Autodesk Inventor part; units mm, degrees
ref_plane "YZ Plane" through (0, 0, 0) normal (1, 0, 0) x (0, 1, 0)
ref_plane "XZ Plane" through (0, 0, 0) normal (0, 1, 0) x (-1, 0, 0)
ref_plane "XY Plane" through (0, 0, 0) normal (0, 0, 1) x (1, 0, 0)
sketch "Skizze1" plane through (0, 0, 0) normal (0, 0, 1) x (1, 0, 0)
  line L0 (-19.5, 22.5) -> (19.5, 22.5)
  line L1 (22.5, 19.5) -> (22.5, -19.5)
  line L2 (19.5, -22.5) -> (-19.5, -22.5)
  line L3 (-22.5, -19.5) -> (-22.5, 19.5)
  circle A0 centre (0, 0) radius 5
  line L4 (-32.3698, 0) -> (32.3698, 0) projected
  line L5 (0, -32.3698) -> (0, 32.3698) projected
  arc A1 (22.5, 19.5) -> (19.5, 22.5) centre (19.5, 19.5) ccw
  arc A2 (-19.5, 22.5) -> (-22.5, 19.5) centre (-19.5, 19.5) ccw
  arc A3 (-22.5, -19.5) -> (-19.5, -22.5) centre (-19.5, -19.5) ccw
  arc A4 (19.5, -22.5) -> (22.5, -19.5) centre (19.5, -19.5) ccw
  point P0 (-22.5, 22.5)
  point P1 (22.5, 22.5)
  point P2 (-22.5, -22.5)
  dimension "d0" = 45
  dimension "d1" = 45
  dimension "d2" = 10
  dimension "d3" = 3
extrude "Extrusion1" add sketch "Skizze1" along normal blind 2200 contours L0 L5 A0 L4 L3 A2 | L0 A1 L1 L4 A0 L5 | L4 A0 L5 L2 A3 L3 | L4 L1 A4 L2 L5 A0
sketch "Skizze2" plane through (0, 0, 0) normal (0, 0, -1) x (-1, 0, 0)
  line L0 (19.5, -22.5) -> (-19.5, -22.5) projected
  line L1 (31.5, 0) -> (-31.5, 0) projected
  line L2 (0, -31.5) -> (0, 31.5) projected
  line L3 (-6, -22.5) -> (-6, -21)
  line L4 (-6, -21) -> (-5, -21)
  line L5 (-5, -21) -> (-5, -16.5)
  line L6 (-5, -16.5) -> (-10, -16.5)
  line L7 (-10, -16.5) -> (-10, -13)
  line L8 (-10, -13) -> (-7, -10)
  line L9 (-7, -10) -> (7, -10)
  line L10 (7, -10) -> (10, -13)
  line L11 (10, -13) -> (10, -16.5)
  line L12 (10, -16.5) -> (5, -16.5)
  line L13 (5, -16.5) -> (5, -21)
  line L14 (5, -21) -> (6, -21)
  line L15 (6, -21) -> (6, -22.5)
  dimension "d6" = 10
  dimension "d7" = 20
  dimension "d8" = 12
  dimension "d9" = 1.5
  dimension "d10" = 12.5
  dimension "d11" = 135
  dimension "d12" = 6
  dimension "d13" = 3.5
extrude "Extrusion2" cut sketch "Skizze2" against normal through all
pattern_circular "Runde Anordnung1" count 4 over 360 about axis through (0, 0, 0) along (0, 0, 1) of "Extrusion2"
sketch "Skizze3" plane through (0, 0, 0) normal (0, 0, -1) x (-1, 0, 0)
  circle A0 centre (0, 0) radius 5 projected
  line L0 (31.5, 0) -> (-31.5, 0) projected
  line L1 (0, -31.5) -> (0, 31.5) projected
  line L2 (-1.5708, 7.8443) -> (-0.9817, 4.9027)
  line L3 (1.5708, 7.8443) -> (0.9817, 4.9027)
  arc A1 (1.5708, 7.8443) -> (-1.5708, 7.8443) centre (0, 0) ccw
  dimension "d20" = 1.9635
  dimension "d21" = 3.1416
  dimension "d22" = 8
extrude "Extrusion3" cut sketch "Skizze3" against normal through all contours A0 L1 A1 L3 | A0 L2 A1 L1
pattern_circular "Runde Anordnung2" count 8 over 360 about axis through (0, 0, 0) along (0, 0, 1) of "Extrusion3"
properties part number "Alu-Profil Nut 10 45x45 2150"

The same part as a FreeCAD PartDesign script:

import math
import FreeCAD as App
import Part
import Sketcher
Q = App.Units.Quantity

doc = App.newDocument("Part")
body = doc.addObject("PartDesign::Body", "Body")

# Sketch on XY plane
sketch1 = body.newObject("Sketcher::SketchObject", "Sketch")
sketch1.AttachmentSupport = (doc.getObject("XY_Plane"), [""])
sketch1.MapMode = "FlatFace"
sketch1.addGeometry([
    Part.ArcOfCircle(Part.Circle(App.Vector(-19.5, 19.5, 0), App.Vector(0, 0, 1), 3), math.radians(90), math.radians(180)),  # 0
    Part.LineSegment(App.Vector(-22.5, 19.5, 0), App.Vector(-22.5, -19.5, 0)),  # 1
    Part.ArcOfCircle(Part.Circle(App.Vector(-19.5, -19.5, 0), App.Vector(0, 0, 1), 3), math.radians(180), math.radians(270)),  # 2
    Part.LineSegment(App.Vector(-19.5, -22.5, 0), App.Vector(19.5, -22.5, 0)),  # 3
    Part.ArcOfCircle(Part.Circle(App.Vector(19.5, -19.5, 0), App.Vector(0, 0, 1), 3), math.radians(-90), math.radians(0)),  # 4
    Part.LineSegment(App.Vector(22.5, -19.5, 0), App.Vector(22.5, 19.5, 0)),  # 5
    Part.ArcOfCircle(Part.Circle(App.Vector(19.5, 19.5, 0), App.Vector(0, 0, 1), 3), math.radians(0), math.radians(90)),  # 6
    Part.LineSegment(App.Vector(19.5, 22.5, 0), App.Vector(-19.5, 22.5, 0)),  # 7
    Part.Circle(App.Vector(0, 0, 0), App.Vector(0, 0, 1), 5),  # 8
], False)
sketch1.addConstraint([
    Sketcher.Constraint("Tangent", 0, 2, 1, 1),
    Sketcher.Constraint("Tangent", 1, 2, 2, 1),
    Sketcher.Constraint("Tangent", 2, 2, 3, 1),
    Sketcher.Constraint("Tangent", 3, 2, 4, 1),
    Sketcher.Constraint("Tangent", 4, 2, 5, 1),
    Sketcher.Constraint("Tangent", 5, 2, 6, 1),
    Sketcher.Constraint("Tangent", 6, 2, 7, 1),
    Sketcher.Constraint("Tangent", 7, 2, 0, 1),
    Sketcher.Constraint("Vertical", 1),
    Sketcher.Constraint("Horizontal", 3),
    Sketcher.Constraint("Vertical", 5),
    Sketcher.Constraint("Horizontal", 7),
    Sketcher.Constraint("Coincident", 8, 3, -1, 1),
    Sketcher.Constraint("Equal", 0, 2),
    Sketcher.Constraint("Equal", 2, 4),
    Sketcher.Constraint("Equal", 4, 6),
    Sketcher.Constraint("Symmetric", 0, 3, 4, 3, -1, 1),
    Sketcher.Constraint("Equal", 7, 1),
    Sketcher.Constraint("Diameter", 8, Q("10 mm")),
    Sketcher.Constraint("Radius", 0, Q("3 mm")),
    Sketcher.Constraint("DistanceX", 3, 1, 3, 2, Q("39 mm")),
])
pad1 = body.newObject("PartDesign::Pad", "Pad")
pad1.Profile = sketch1
pad1.Length = 2200

# Sketch on XY plane
sketch2 = body.newObject("Sketcher::SketchObject", "Sketch001")
sketch2.AttachmentSupport = (doc.getObject("XY_Plane"), [""])
sketch2.MapMode = "FlatFace"
sketch2.addGeometry([
    Part.LineSegment(App.Vector(-6, -22.5, 0), App.Vector(-6, -21, 0)),  # 0
    Part.LineSegment(App.Vector(-6, -21, 0), App.Vector(-5, -21, 0)),  # 1
    Part.LineSegment(App.Vector(-5, -21, 0), App.Vector(-5, -16.5, 0)),  # 2
    Part.LineSegment(App.Vector(-5, -16.5, 0), App.Vector(-10, -16.5, 0)),  # 3
    Part.LineSegment(App.Vector(-10, -16.5, 0), App.Vector(-10, -13, 0)),  # 4
    Part.LineSegment(App.Vector(-10, -13, 0), App.Vector(-7, -10, 0)),  # 5
    Part.LineSegment(App.Vector(-7, -10, 0), App.Vector(7, -10, 0)),  # 6
    Part.LineSegment(App.Vector(7, -10, 0), App.Vector(10, -13, 0)),  # 7
    Part.LineSegment(App.Vector(10, -13, 0), App.Vector(10, -16.5, 0)),  # 8
    Part.LineSegment(App.Vector(10, -16.5, 0), App.Vector(5, -16.5, 0)),  # 9
    Part.LineSegment(App.Vector(5, -16.5, 0), App.Vector(5, -21, 0)),  # 10
    Part.LineSegment(App.Vector(5, -21, 0), App.Vector(6, -21, 0)),  # 11
    Part.LineSegment(App.Vector(6, -21, 0), App.Vector(6, -22.5, 0)),  # 12
    Part.LineSegment(App.Vector(6, -22.5, 0), App.Vector(-6, -22.5, 0)),  # 13
], False)
sketch2.addConstraint([
    Sketcher.Constraint("Coincident", 0, 2, 1, 1),
    Sketcher.Constraint("Coincident", 1, 2, 2, 1),
    Sketcher.Constraint("Coincident", 2, 2, 3, 1),
    Sketcher.Constraint("Coincident", 3, 2, 4, 1),
    Sketcher.Constraint("Coincident", 4, 2, 5, 1),
    Sketcher.Constraint("Coincident", 5, 2, 6, 1),
    Sketcher.Constraint("Coincident", 6, 2, 7, 1),
    Sketcher.Constraint("Coincident", 7, 2, 8, 1),
    Sketcher.Constraint("Coincident", 8, 2, 9, 1),
    Sketcher.Constraint("Coincident", 9, 2, 10, 1),
    Sketcher.Constraint("Coincident", 10, 2, 11, 1),
    Sketcher.Constraint("Coincident", 11, 2, 12, 1),
    Sketcher.Constraint("Coincident", 12, 2, 13, 1),
    Sketcher.Constraint("Coincident", 13, 2, 0, 1),
    Sketcher.Constraint("Vertical", 0),
    Sketcher.Constraint("Horizontal", 1),
    Sketcher.Constraint("Vertical", 2),
    Sketcher.Constraint("Horizontal", 3),
    Sketcher.Constraint("Vertical", 4),
    Sketcher.Constraint("Horizontal", 6),
    Sketcher.Constraint("Vertical", 8),
    Sketcher.Constraint("Horizontal", 9),
    Sketcher.Constraint("Vertical", 10),
    Sketcher.Constraint("Horizontal", 11),
    Sketcher.Constraint("Vertical", 12),
    Sketcher.Constraint("Horizontal", 13),
    Sketcher.Constraint("Symmetric", 4, 2, 7, 2, -2),
    Sketcher.Constraint("Symmetric", 2, 2, 9, 2, -2),
    Sketcher.Constraint("Symmetric", 0, 2, 11, 2, -2),
    Sketcher.Constraint("Perpendicular", 5, 7),
    Sketcher.Constraint("Equal", 5, 7),
    Sketcher.Constraint("DistanceX", 13, 2, 13, 1, Q("12 mm")),
    Sketcher.Constraint("DistanceY", 0, 1, 0, 2, Q("1.5 mm")),
    Sketcher.Constraint("DistanceY", 4, 1, 4, 2, Q("3.5 mm")),
    Sketcher.Constraint("DistanceX", 3, 2, -1, 1, Q("10 mm")),
    Sketcher.Constraint("DistanceY", 5, 2, -1, 1, Q("10 mm")),
    Sketcher.Constraint("DistanceX", 2, 2, 6, 2, Q("12 mm")),
    Sketcher.Constraint("DistanceX", 2, 2, 9, 2, Q("10 mm")),
    Sketcher.Constraint("DistanceY", 12, 2, 9, 2, Q("6 mm")),
])
pocket1 = body.newObject("PartDesign::Pocket", "Pocket")
pocket1.Profile = sketch2
pocket1.Type = "ThroughAll"
pocket1.Reversed = True
doc.recompute()

polarpattern = body.newObject("PartDesign::PolarPattern", "PolarPattern")
polarpattern.Originals = [pocket1]
polarpattern.Axis = (doc.getObject("Z_Axis"), [""])
polarpattern.Angle = 360
polarpattern.Occurrences = 4
body.Tip = polarpattern

# Sketch on XY plane
sketch3 = body.newObject("Sketcher::SketchObject", "Sketch002")
sketch3.AttachmentSupport = (doc.getObject("XY_Plane"), [""])
sketch3.MapMode = "FlatFace"
sketch3.addGeometry([
    Part.LineSegment(App.Vector(-0.9817, 4.9027, 0), App.Vector(-1.5708, 7.8443, 0)),
    Part.ArcOfCircle(Part.Circle(App.Vector(0, 0, 0), App.Vector(0, 0, 1), 8.000028), math.radians(78.676443), math.radians(101.323557)),
    Part.LineSegment(App.Vector(1.5708, 7.8443, 0), App.Vector(0.9817, 4.9027, 0)),
    Part.ArcOfCircle(Part.Circle(App.Vector(0, 0, 0), App.Vector(0, 0, 1), 5), math.radians(78.677033), math.radians(101.322967)),
], False)
sketch3.addConstraint([
    Sketcher.Constraint("Coincident", 0, 2, 1, 2),
    Sketcher.Constraint("Coincident", 1, 1, 2, 1),
    Sketcher.Constraint("Coincident", 2, 2, 3, 1),
    Sketcher.Constraint("Coincident", 3, 2, 0, 1),
    Sketcher.Constraint("Coincident", 1, 3, -1, 1),
    Sketcher.Constraint("Coincident", 3, 3, -1, 1),
    Sketcher.Constraint("Horizontal", 0, 2, 1, 1),
    Sketcher.Constraint("Horizontal", 2, 2, 3, 2),
    Sketcher.Constraint("Radius", 1, Q("8 mm")),
    Sketcher.Constraint("Radius", 3, Q("5 mm")),
    Sketcher.Constraint("DistanceX", 0, 2, 1, 1, Q("3.1416 mm")),
    Sketcher.Constraint("DistanceX", 3, 2, 2, 2, Q("1.9634 mm")),
])
pocket2 = body.newObject("PartDesign::Pocket", "Pocket001")
pocket2.Profile = sketch3
pocket2.Type = "ThroughAll"
pocket2.Reversed = True
doc.recompute()

polarpattern2 = body.newObject("PartDesign::PolarPattern", "PolarPattern001")
polarpattern2.Originals = [pocket2]
polarpattern2.Axis = (doc.getObject("Z_Axis"), [""])
polarpattern2.Angle = 360
polarpattern2.Occurrences = 8
body.Tip = polarpattern2

doc.recompute()
